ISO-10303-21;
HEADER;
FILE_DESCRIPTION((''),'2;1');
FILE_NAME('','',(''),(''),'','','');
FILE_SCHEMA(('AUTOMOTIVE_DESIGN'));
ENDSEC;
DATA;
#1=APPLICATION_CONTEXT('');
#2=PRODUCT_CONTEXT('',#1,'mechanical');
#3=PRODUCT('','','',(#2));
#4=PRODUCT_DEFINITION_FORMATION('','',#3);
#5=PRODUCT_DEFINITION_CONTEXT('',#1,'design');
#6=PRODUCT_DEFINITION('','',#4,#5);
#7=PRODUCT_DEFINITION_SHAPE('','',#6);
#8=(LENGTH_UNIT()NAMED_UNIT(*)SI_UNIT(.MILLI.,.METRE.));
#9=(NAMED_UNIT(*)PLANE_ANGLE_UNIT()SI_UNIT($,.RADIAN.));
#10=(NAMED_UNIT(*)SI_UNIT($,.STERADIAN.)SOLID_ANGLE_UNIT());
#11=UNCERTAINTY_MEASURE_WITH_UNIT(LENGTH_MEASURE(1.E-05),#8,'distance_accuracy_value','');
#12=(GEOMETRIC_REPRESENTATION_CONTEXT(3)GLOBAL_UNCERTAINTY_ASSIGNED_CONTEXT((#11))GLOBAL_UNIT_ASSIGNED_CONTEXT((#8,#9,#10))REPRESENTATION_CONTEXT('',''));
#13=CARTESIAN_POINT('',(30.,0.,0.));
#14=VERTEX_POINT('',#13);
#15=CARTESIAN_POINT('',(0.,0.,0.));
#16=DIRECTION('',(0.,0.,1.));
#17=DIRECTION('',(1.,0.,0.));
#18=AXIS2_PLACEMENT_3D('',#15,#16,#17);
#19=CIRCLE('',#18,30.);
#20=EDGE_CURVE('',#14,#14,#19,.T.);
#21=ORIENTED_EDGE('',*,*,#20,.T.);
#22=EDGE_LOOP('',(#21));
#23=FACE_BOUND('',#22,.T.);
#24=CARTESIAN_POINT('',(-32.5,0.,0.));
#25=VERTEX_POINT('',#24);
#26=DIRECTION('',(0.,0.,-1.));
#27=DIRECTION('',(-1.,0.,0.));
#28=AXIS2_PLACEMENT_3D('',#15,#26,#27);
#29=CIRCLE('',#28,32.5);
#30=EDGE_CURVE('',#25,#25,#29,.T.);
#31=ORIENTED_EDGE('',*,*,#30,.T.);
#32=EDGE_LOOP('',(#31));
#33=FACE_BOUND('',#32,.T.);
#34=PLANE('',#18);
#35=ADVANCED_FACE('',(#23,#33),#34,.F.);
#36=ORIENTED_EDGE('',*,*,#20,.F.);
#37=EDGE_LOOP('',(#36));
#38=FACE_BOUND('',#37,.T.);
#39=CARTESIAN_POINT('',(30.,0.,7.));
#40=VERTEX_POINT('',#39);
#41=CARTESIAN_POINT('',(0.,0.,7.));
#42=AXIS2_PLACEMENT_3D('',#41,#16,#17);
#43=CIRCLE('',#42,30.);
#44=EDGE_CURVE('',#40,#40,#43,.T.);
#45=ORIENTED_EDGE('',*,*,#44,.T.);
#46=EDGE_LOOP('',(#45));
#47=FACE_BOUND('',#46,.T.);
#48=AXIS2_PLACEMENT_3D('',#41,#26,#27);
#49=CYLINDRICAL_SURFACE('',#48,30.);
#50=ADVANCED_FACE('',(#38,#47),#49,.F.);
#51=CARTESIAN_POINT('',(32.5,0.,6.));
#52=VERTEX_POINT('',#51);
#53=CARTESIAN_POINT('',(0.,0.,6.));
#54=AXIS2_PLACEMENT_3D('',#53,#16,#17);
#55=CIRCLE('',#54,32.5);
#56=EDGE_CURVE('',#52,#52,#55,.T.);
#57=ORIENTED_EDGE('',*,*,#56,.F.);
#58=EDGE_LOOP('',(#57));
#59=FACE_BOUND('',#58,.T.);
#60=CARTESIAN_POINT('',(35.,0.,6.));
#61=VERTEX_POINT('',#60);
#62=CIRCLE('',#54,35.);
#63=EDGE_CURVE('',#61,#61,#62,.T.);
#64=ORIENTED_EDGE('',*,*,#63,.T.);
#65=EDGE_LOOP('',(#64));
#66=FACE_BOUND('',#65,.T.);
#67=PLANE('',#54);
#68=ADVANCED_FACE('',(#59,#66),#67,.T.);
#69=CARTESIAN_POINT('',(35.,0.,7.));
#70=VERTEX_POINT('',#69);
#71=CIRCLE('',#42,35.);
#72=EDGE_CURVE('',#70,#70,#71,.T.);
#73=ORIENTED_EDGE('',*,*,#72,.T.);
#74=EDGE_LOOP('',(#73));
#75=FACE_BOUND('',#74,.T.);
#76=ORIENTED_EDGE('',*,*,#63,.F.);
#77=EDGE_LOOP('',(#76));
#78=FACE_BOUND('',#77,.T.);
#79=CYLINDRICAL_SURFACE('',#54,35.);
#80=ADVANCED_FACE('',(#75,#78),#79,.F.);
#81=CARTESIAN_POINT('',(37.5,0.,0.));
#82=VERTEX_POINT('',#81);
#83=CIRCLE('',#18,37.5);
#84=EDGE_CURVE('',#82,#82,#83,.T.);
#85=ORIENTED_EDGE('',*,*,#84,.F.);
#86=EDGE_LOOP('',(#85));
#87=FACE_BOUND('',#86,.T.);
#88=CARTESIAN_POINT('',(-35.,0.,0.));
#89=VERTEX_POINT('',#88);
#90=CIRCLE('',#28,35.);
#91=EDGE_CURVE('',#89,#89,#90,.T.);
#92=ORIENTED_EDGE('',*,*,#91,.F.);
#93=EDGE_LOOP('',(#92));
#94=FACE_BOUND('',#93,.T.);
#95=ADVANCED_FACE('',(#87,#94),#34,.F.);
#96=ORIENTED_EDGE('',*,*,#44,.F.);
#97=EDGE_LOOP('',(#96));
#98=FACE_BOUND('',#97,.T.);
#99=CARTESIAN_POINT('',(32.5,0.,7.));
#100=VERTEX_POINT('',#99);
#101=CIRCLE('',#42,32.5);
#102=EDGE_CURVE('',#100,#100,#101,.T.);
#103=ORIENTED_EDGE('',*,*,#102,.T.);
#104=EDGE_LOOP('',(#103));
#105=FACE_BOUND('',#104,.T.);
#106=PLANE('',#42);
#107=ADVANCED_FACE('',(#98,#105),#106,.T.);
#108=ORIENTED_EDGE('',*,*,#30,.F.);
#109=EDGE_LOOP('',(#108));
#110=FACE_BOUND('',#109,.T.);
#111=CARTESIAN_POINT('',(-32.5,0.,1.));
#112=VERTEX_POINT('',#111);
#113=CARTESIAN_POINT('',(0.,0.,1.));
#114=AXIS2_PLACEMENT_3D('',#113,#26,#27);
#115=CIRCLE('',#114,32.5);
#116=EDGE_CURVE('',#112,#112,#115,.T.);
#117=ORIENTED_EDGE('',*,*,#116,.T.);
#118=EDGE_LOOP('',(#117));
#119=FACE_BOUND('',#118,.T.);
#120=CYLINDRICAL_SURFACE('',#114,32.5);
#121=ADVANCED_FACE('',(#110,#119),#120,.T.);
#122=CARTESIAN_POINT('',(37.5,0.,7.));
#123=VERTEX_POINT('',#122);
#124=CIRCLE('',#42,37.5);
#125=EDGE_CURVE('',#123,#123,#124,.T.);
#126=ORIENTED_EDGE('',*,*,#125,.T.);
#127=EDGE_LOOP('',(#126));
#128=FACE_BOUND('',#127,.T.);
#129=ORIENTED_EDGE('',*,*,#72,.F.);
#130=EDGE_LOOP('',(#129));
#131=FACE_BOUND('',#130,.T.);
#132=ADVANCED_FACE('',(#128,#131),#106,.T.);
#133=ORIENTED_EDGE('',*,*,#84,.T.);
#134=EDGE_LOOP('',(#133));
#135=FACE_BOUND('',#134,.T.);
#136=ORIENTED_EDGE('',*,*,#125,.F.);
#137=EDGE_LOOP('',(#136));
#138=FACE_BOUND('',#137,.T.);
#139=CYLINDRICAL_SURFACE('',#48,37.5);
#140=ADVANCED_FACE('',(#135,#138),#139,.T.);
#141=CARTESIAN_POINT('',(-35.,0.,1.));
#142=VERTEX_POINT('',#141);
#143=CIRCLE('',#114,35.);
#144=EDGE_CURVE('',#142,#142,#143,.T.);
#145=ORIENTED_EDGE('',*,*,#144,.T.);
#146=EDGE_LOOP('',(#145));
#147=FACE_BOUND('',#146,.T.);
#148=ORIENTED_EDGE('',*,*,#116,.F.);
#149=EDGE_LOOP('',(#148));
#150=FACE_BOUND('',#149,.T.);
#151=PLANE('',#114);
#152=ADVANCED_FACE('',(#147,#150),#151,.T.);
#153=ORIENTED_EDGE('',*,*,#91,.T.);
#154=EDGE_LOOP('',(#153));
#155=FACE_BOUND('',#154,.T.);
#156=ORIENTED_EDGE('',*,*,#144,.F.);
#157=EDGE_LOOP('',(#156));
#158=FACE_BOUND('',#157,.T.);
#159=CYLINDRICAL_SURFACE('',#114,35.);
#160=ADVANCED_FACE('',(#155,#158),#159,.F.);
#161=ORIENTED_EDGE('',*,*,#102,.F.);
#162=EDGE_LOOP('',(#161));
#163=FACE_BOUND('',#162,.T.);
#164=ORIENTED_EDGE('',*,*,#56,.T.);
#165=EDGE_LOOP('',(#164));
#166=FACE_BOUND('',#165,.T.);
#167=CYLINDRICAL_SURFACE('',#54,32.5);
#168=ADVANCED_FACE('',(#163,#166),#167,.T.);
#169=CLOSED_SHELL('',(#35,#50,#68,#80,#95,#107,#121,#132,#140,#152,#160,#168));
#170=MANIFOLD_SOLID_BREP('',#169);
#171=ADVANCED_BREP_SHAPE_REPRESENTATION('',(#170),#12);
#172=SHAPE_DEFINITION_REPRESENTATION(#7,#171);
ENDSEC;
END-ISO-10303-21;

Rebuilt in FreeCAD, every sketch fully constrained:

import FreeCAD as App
import Part
import Sketcher
Q = App.Units.Quantity

doc = App.newDocument("Part")
body = doc.addObject("PartDesign::Body", "Body")

sketch1 = doc.addObject("Sketcher::SketchObject", "Sketch")
body.addObject(sketch1)
sketch1.AttachmentSupport = (doc.XY_Plane, [""])
sketch1.MapMode = "FlatFace"
sketch1.addGeometry(Part.Circle(App.Vector(0, 0, 0), App.Vector(0, 0, 1), 38), False)
sketch1.addGeometry(Part.Circle(App.Vector(0, 0, 0), App.Vector(0, 0, 1), 30), False)
sketch1.addConstraint(Sketcher.Constraint("Coincident", 0, 3, -1, 1))
sketch1.addConstraint(Sketcher.Constraint("Coincident", 1, 3, -1, 1))
sketch1.addConstraint(Sketcher.Constraint("Diameter", 0, Q("75 mm")))
sketch1.addConstraint(Sketcher.Constraint("Diameter", 1, Q("60 mm")))
pad1 = doc.addObject("PartDesign::Pad", "Pad")
body.addObject(pad1)
pad1.Profile = sketch1
pad1.Length = 7

sketch2 = doc.addObject("Sketcher::SketchObject", "Sketch001")
body.addObject(sketch2)
sketch2.AttachmentSupport = (doc.XY_Plane, [""])
sketch2.MapMode = "FlatFace"
sketch2.AttachmentOffset = App.Placement(App.Vector(0, 0, 7), App.Rotation())
sketch2.addGeometry(Part.Circle(App.Vector(0, 0, 0), App.Vector(0, 0, 1), 35), False)
sketch2.addGeometry(Part.Circle(App.Vector(0, 0, 0), App.Vector(0, 0, 1), 32), False)
sketch2.addConstraint(Sketcher.Constraint("Coincident", 0, 3, -1, 1))
sketch2.addConstraint(Sketcher.Constraint("Coincident", 1, 3, -1, 1))
sketch2.addConstraint(Sketcher.Constraint("Diameter", 0, Q("70 mm")))
sketch2.addConstraint(Sketcher.Constraint("Diameter", 1, Q("65 mm")))
pocket1 = doc.addObject("PartDesign::Pocket", "Pocket")
body.addObject(pocket1)
pocket1.Profile = sketch2
pocket1.Length = 1

sketch3 = doc.addObject("Sketcher::SketchObject", "Sketch002")
body.addObject(sketch3)
sketch3.AttachmentSupport = (doc.XY_Plane, [""])
sketch3.MapMode = "FlatFace"
sketch3.AttachmentOffset = App.Placement(App.Vector(0, 0, 1), App.Rotation())
sketch3.addGeometry(Part.Circle(App.Vector(0, 0, 0), App.Vector(0, 0, 1), 35), False)
sketch3.addGeometry(Part.Circle(App.Vector(0, 0, 0), App.Vector(0, 0, 1), 32), False)
sketch3.addConstraint(Sketcher.Constraint("Coincident", 0, 3, -1, 1))
sketch3.addConstraint(Sketcher.Constraint("Coincident", 1, 3, -1, 1))
sketch3.addConstraint(Sketcher.Constraint("Diameter", 0, Q("70 mm")))
sketch3.addConstraint(Sketcher.Constraint("Diameter", 1, Q("65 mm")))
pocket2 = doc.addObject("PartDesign::Pocket", "Pocket001")
body.addObject(pocket2)
pocket2.Profile = sketch3
pocket2.Length = 1

doc.recompute()
